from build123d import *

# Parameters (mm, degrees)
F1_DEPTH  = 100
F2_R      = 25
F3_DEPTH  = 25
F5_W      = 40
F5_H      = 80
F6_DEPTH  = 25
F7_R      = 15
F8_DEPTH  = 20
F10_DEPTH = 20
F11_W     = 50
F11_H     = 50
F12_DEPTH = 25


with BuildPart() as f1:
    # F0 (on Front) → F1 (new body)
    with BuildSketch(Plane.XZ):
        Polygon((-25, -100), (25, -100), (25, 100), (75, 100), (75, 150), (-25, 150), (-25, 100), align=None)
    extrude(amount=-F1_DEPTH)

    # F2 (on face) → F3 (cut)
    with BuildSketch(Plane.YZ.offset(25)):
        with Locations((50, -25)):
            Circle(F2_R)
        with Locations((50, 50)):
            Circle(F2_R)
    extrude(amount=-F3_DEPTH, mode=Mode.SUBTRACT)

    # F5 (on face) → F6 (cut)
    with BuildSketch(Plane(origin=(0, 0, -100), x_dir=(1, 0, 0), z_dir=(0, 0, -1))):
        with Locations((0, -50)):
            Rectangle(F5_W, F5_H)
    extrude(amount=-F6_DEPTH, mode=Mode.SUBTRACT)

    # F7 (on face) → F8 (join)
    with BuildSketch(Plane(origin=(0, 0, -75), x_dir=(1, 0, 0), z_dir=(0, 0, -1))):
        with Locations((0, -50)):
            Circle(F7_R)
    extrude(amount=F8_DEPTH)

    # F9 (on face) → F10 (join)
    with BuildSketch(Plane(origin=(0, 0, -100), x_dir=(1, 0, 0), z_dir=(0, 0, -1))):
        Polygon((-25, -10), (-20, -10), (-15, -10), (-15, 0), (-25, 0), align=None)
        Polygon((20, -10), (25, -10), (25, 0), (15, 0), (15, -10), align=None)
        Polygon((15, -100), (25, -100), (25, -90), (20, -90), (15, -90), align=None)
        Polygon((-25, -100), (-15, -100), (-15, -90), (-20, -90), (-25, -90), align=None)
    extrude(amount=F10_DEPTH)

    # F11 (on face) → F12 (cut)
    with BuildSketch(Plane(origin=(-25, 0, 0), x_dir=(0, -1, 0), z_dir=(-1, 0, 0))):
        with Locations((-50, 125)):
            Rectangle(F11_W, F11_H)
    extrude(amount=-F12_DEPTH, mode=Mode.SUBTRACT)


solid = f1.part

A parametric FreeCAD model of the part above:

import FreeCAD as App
import Part
import Sketcher

V = App.Vector
Q = App.Units.Quantity

doc = App.newDocument("Part")
body = doc.addObject("PartDesign::Body", "Body")

sketch1 = doc.addObject("Sketcher::SketchObject", "Sketch")
body.addObject(sketch1)
sketch1.AttachmentSupport = (doc.XZ_Plane, [""])
sketch1.MapMode = "FlatFace"
sketch1.addGeometry(Part.LineSegment(V(-25, -100, 0), V(25, -100, 0)), False)
sketch1.addGeometry(Part.LineSegment(V(25, -100, 0), V(25, 100, 0)), False)
sketch1.addGeometry(Part.LineSegment(V(25, 100, 0), V(75, 100, 0)), False)
sketch1.addGeometry(Part.LineSegment(V(75, 100, 0), V(75, 150, 0)), False)
sketch1.addGeometry(Part.LineSegment(V(75, 150, 0), V(-25, 150, 0)), False)
sketch1.addGeometry(Part.LineSegment(V(-25, 150, 0), V(-25, -100, 0)), False)
sketch1.addConstraint(Sketcher.Constraint("Coincident", 0, 2, 1, 1))
sketch1.addConstraint(Sketcher.Constraint("Coincident", 1, 2, 2, 1))
sketch1.addConstraint(Sketcher.Constraint("Coincident", 2, 2, 3, 1))
sketch1.addConstraint(Sketcher.Constraint("Coincident", 3, 2, 4, 1))
sketch1.addConstraint(Sketcher.Constraint("Coincident", 4, 2, 5, 1))
sketch1.addConstraint(Sketcher.Constraint("Coincident", 5, 2, 0, 1))
sketch1.addConstraint(Sketcher.Constraint("Horizontal", 0))
sketch1.addConstraint(Sketcher.Constraint("Vertical", 1))
sketch1.addConstraint(Sketcher.Constraint("Horizontal", 2))
sketch1.addConstraint(Sketcher.Constraint("Vertical", 3))
sketch1.addConstraint(Sketcher.Constraint("Horizontal", 4))
sketch1.addConstraint(Sketcher.Constraint("Vertical", 5))
sketch1.addConstraint(Sketcher.Constraint("Symmetric", 1, 2, 5, 2, -1, 1))
sketch1.addConstraint(Sketcher.Constraint("Equal", 0, 2))
sketch1.addConstraint(Sketcher.Constraint("Equal", 2, 3))
sketch1.addConstraint(Sketcher.Constraint("DistanceX", 0, 1, 0, 2, Q("50 mm")))
sketch1.addConstraint(Sketcher.Constraint("DistanceY", 1, 1, 1, 2, Q("200 mm")))
pad1 = doc.addObject("PartDesign::Pad", "Pad")
body.addObject(pad1)
pad1.Profile = sketch1
pad1.Length = 100
pad1.Reversed = True

sketch2 = doc.addObject("Sketcher::SketchObject", "Sketch001")
body.addObject(sketch2)
sketch2.AttachmentSupport = (doc.YZ_Plane, [""])
sketch2.MapMode = "FlatFace"
sketch2.AttachmentOffset = App.Placement(V(0, 0, 25), App.Rotation())
sketch2.addGeometry(Part.Circle(V(50, -25, 0), V(0, 0, 1), 25), False)
sketch2.addGeometry(Part.Circle(V(50, 50, 0), V(0, 0, 1), 25), False)
sketch2.addConstraint(Sketcher.Constraint("Equal", 0, 1))
sketch2.addConstraint(Sketcher.Constraint("Vertical", 0, 3, 1, 3))
sketch2.addConstraint(Sketcher.Constraint("Diameter", 0, Q("50 mm")))
sketch2.addConstraint(Sketcher.Constraint("DistanceX", -1, 1, 0, 3, Q("50 mm")))
sketch2.addConstraint(Sketcher.Constraint("DistanceY", 0, 3, -1, 1, Q("25 mm")))
sketch2.addConstraint(Sketcher.Constraint("DistanceY", -1, 1, 1, 3, Q("50 mm")))
pocket1 = doc.addObject("PartDesign::Pocket", "Pocket")
body.addObject(pocket1)
pocket1.Profile = sketch2
pocket1.Length = 25

sketch3 = doc.addObject("Sketcher::SketchObject", "Sketch002")
body.addObject(sketch3)
sketch3.AttachmentSupport = (doc.XY_Plane, [""])
sketch3.MapMode = "FlatFace"
sketch3.AttachmentOffset = App.Placement(V(0, 0, -100), App.Rotation())
sketch3.addGeometry(Part.LineSegment(V(-20, 10, 0), V(-20, 90, 0)), False)
sketch3.addGeometry(Part.LineSegment(V(-20, 90, 0), V(20, 90, 0)), False)
sketch3.addGeometry(Part.LineSegment(V(20, 90, 0), V(20, 10, 0)), False)
sketch3.addGeometry(Part.LineSegment(V(20, 10, 0), V(-20, 10, 0)), False)
sketch3.addConstraint(Sketcher.Constraint("Coincident", 0, 2, 1, 1))
sketch3.addConstraint(Sketcher.Constraint("Coincident", 1, 2, 2, 1))
sketch3.addConstraint(Sketcher.Constraint("Coincident", 2, 2, 3, 1))
sketch3.addConstraint(Sketcher.Constraint("Coincident", 3, 2, 0, 1))
sketch3.addConstraint(Sketcher.Constraint("Vertical", 0))
sketch3.addConstraint(Sketcher.Constraint("Horizontal", 1))
sketch3.addConstraint(Sketcher.Constraint("Vertical", 2))
sketch3.addConstraint(Sketcher.Constraint("Horizontal", 3))
sketch3.addConstraint(Sketcher.Constraint("DistanceX", 1, 1, 1, 2, Q("40 mm")))
sketch3.addConstraint(Sketcher.Constraint("DistanceY", 0, 1, 0, 2, Q("80 mm")))
sketch3.addConstraint(Sketcher.Constraint("DistanceX", 0, 2, -1, 1, Q("20 mm")))
sketch3.addConstraint(Sketcher.Constraint("DistanceY", -1, 1, 0, 2, Q("90 mm")))
pocket2 = doc.addObject("PartDesign::Pocket", "Pocket001")
body.addObject(pocket2)
pocket2.Profile = sketch3
pocket2.Length = 25
pocket2.Reversed = True

sketch4 = doc.addObject("Sketcher::SketchObject", "Sketch003")
body.addObject(sketch4)
sketch4.AttachmentSupport = (doc.XY_Plane, [""])
sketch4.MapMode = "FlatFace"
sketch4.AttachmentOffset = App.Placement(V(0, 0, -75), App.Rotation())
sketch4.addGeometry(Part.Circle(V(0, 50, 0), V(0, 0, 1), 15), False)
sketch4.addConstraint(Sketcher.Constraint("PointOnObject", 0, 3, -2))
sketch4.addConstraint(Sketcher.Constraint("Diameter", 0, Q("30 mm")))
sketch4.addConstraint(Sketcher.Constraint("DistanceY", -1, 1, 0, 3, Q("50 mm")))
pad2 = doc.addObject("PartDesign::Pad", "Pad001")
body.addObject(pad2)
pad2.Profile = sketch4
pad2.Length = 20
pad2.Reversed = True

sketch5 = doc.addObject("Sketcher::SketchObject", "Sketch004")
body.addObject(sketch5)
sketch5.AttachmentSupport = (doc.XY_Plane, [""])
sketch5.MapMode = "FlatFace"
sketch5.AttachmentOffset = App.Placement(V(0, 0, -100), App.Rotation())
sketch5.addGeometry(Part.LineSegment(V(-25, 10, 0), V(-15, 10, 0)), False)
sketch5.addGeometry(Part.LineSegment(V(-15, 10, 0), V(-15, 0, 0)), False)
sketch5.addGeometry(Part.LineSegment(V(-15, 0, 0), V(-25, 0, 0)), False)
sketch5.addGeometry(Part.LineSegment(V(-25, 0, 0), V(-25, 10, 0)), False)
sketch5.addGeometry(Part.LineSegment(V(25, 10, 0), V(25, 0, 0)), False)
sketch5.addGeometry(Part.LineSegment(V(25, 0, 0), V(15, 0, 0)), False)
sketch5.addGeometry(Part.LineSegment(V(15, 0, 0), V(15, 10, 0)), False)
sketch5.addGeometry(Part.LineSegment(V(15, 10, 0), V(25, 10, 0)), False)
sketch5.addGeometry(Part.LineSegment(V(15, 100, 0), V(25, 100, 0)), False)
sketch5.addGeometry(Part.LineSegment(V(25, 100, 0), V(25, 90, 0)), False)
sketch5.addGeometry(Part.LineSegment(V(25, 90, 0), V(15, 90, 0)), False)
sketch5.addGeometry(Part.LineSegment(V(15, 90, 0), V(15, 100, 0)), False)
sketch5.addGeometry(Part.LineSegment(V(-25, 100, 0), V(-15, 100, 0)), False)
sketch5.addGeometry(Part.LineSegment(V(-15, 100, 0), V(-15, 90, 0)), False)
sketch5.addGeometry(Part.LineSegment(V(-15, 90, 0), V(-25, 90, 0)), False)
sketch5.addGeometry(Part.LineSegment(V(-25, 90, 0), V(-25, 100, 0)), False)
sketch5.addConstraint(Sketcher.Constraint("Coincident", 0, 2, 1, 1))
sketch5.addConstraint(Sketcher.Constraint("Coincident", 1, 2, 2, 1))
sketch5.addConstraint(Sketcher.Constraint("Coincident", 2, 2, 3, 1))
sketch5.addConstraint(Sketcher.Constraint("Coincident", 3, 2, 0, 1))
sketch5.addConstraint(Sketcher.Constraint("Coincident", 4, 2, 5, 1))
sketch5.addConstraint(Sketcher.Constraint("Coincident", 5, 2, 6, 1))
sketch5.addConstraint(Sketcher.Constraint("Coincident", 6, 2, 7, 1))
sketch5.addConstraint(Sketcher.Constraint("Coincident", 7, 2, 4, 1))
sketch5.addConstraint(Sketcher.Constraint("Coincident", 8, 2, 9, 1))
sketch5.addConstraint(Sketcher.Constraint("Coincident", 9, 2, 10, 1))
sketch5.addConstraint(Sketcher.Constraint("Coincident", 10, 2, 11, 1))
sketch5.addConstraint(Sketcher.Constraint("Coincident", 11, 2, 8, 1))
sketch5.addConstraint(Sketcher.Constraint("Coincident", 12, 2, 13, 1))
sketch5.addConstraint(Sketcher.Constraint("Coincident", 13, 2, 14, 1))
sketch5.addConstraint(Sketcher.Constraint("Coincident", 14, 2, 15, 1))
sketch5.addConstraint(Sketcher.Constraint("Coincident", 15, 2, 12, 1))
sketch5.addConstraint(Sketcher.Constraint("Horizontal", 0))
sketch5.addConstraint(Sketcher.Constraint("Vertical", 1))
sketch5.addConstraint(Sketcher.Constraint("Horizontal", 2))
sketch5.addConstraint(Sketcher.Constraint("Vertical", 3))
sketch5.addConstraint(Sketcher.Constraint("Vertical", 4))
sketch5.addConstraint(Sketcher.Constraint("Horizontal", 5))
sketch5.addConstraint(Sketcher.Constraint("Vertical", 6))
sketch5.addConstraint(Sketcher.Constraint("Horizontal", 7))
sketch5.addConstraint(Sketcher.Constraint("Horizontal", 8))
sketch5.addConstraint(Sketcher.Constraint("Vertical", 9))
sketch5.addConstraint(Sketcher.Constraint("Horizontal", 10))
sketch5.addConstraint(Sketcher.Constraint("Vertical", 11))
sketch5.addConstraint(Sketcher.Constraint("Horizontal", 12))
sketch5.addConstraint(Sketcher.Constraint("Vertical", 13))
sketch5.addConstraint(Sketcher.Constraint("Horizontal", 14))
sketch5.addConstraint(Sketcher.Constraint("Vertical", 15))
sketch5.addConstraint(Sketcher.Constraint("Symmetric", 2, 2, 4, 2, -1, 1))
sketch5.addConstraint(Sketcher.Constraint("Symmetric", 1, 2, 5, 2, -2))
sketch5.addConstraint(Sketcher.Constraint("Symmetric", 11, 2, 12, 2, -2))
sketch5.addConstraint(Sketcher.Constraint("Symmetric", 9, 2, 14, 2, -2))
sketch5.addConstraint(Sketcher.Constraint("Horizontal", 3, 2, 6, 2))
sketch5.addConstraint(Sketcher.Constraint("Vertical", 7, 2, 8, 2))
sketch5.addConstraint(Sketcher.Constraint("Vertical", 6, 2, 10, 2))
sketch5.addConstraint(Sketcher.Constraint("Equal", 14, 1))
sketch5.addConstraint(Sketcher.Constraint("Equal", 6, 9))
sketch5.addConstraint(Sketcher.Constraint("DistanceX", 0, 1, 0, 2, Q("10 mm")))
sketch5.addConstraint(Sketcher.Constraint("DistanceX", 0, 2, -1, 1, Q("15 mm")))
sketch5.addConstraint(Sketcher.Constraint("DistanceY", -1, 1, 8, 2, Q("100 mm")))
pad3 = doc.addObject("PartDesign::Pad", "Pad002")
body.addObject(pad3)
pad3.Profile = sketch5
pad3.Length = 20
pad3.Reversed = True

sketch6 = doc.addObject("Sketcher::SketchObject", "Sketch005")
body.addObject(sketch6)
sketch6.AttachmentSupport = (doc.YZ_Plane, [""])
sketch6.MapMode = "FlatFace"
sketch6.AttachmentOffset = App.Placement(V(0, 0, -25), App.Rotation())
sketch6.addGeometry(Part.LineSegment(V(75, 150, 0), V(75, 100, 0)), False)
sketch6.addGeometry(Part.LineSegment(V(75, 100, 0), V(25, 100, 0)), False)
sketch6.addGeometry(Part.LineSegment(V(25, 100, 0), V(25, 150, 0)), False)
sketch6.addGeometry(Part.LineSegment(V(25, 150, 0), V(75, 150, 0)), False)
sketch6.addConstraint(Sketcher.Constraint("Coincident", 0, 2, 1, 1))
sketch6.addConstraint(Sketcher.Constraint("Coincident", 1, 2, 2, 1))
sketch6.addConstraint(Sketcher.Constraint("Coincident", 2, 2, 3, 1))
sketch6.addConstraint(Sketcher.Constraint("Coincident", 3, 2, 0, 1))
sketch6.addConstraint(Sketcher.Constraint("Vertical", 0))
sketch6.addConstraint(Sketcher.Constraint("Horizontal", 1))
sketch6.addConstraint(Sketcher.Constraint("Vertical", 2))
sketch6.addConstraint(Sketcher.Constraint("Horizontal", 3))
sketch6.addConstraint(Sketcher.Constraint("Equal", 3, 0))
sketch6.addConstraint(Sketcher.Constraint("DistanceX", 1, 2, 1, 1, Q("50 mm")))
sketch6.addConstraint(Sketcher.Constraint("DistanceX", -1, 1, 0, 2, Q("75 mm")))
sketch6.addConstraint(Sketcher.Constraint("DistanceY", -1, 1, 0, 2, Q("100 mm")))
pocket3 = doc.addObject("PartDesign::Pocket", "Pocket002")
body.addObject(pocket3)
pocket3.Profile = sketch6
pocket3.Length = 25
pocket3.Reversed = True

doc.recompute()
